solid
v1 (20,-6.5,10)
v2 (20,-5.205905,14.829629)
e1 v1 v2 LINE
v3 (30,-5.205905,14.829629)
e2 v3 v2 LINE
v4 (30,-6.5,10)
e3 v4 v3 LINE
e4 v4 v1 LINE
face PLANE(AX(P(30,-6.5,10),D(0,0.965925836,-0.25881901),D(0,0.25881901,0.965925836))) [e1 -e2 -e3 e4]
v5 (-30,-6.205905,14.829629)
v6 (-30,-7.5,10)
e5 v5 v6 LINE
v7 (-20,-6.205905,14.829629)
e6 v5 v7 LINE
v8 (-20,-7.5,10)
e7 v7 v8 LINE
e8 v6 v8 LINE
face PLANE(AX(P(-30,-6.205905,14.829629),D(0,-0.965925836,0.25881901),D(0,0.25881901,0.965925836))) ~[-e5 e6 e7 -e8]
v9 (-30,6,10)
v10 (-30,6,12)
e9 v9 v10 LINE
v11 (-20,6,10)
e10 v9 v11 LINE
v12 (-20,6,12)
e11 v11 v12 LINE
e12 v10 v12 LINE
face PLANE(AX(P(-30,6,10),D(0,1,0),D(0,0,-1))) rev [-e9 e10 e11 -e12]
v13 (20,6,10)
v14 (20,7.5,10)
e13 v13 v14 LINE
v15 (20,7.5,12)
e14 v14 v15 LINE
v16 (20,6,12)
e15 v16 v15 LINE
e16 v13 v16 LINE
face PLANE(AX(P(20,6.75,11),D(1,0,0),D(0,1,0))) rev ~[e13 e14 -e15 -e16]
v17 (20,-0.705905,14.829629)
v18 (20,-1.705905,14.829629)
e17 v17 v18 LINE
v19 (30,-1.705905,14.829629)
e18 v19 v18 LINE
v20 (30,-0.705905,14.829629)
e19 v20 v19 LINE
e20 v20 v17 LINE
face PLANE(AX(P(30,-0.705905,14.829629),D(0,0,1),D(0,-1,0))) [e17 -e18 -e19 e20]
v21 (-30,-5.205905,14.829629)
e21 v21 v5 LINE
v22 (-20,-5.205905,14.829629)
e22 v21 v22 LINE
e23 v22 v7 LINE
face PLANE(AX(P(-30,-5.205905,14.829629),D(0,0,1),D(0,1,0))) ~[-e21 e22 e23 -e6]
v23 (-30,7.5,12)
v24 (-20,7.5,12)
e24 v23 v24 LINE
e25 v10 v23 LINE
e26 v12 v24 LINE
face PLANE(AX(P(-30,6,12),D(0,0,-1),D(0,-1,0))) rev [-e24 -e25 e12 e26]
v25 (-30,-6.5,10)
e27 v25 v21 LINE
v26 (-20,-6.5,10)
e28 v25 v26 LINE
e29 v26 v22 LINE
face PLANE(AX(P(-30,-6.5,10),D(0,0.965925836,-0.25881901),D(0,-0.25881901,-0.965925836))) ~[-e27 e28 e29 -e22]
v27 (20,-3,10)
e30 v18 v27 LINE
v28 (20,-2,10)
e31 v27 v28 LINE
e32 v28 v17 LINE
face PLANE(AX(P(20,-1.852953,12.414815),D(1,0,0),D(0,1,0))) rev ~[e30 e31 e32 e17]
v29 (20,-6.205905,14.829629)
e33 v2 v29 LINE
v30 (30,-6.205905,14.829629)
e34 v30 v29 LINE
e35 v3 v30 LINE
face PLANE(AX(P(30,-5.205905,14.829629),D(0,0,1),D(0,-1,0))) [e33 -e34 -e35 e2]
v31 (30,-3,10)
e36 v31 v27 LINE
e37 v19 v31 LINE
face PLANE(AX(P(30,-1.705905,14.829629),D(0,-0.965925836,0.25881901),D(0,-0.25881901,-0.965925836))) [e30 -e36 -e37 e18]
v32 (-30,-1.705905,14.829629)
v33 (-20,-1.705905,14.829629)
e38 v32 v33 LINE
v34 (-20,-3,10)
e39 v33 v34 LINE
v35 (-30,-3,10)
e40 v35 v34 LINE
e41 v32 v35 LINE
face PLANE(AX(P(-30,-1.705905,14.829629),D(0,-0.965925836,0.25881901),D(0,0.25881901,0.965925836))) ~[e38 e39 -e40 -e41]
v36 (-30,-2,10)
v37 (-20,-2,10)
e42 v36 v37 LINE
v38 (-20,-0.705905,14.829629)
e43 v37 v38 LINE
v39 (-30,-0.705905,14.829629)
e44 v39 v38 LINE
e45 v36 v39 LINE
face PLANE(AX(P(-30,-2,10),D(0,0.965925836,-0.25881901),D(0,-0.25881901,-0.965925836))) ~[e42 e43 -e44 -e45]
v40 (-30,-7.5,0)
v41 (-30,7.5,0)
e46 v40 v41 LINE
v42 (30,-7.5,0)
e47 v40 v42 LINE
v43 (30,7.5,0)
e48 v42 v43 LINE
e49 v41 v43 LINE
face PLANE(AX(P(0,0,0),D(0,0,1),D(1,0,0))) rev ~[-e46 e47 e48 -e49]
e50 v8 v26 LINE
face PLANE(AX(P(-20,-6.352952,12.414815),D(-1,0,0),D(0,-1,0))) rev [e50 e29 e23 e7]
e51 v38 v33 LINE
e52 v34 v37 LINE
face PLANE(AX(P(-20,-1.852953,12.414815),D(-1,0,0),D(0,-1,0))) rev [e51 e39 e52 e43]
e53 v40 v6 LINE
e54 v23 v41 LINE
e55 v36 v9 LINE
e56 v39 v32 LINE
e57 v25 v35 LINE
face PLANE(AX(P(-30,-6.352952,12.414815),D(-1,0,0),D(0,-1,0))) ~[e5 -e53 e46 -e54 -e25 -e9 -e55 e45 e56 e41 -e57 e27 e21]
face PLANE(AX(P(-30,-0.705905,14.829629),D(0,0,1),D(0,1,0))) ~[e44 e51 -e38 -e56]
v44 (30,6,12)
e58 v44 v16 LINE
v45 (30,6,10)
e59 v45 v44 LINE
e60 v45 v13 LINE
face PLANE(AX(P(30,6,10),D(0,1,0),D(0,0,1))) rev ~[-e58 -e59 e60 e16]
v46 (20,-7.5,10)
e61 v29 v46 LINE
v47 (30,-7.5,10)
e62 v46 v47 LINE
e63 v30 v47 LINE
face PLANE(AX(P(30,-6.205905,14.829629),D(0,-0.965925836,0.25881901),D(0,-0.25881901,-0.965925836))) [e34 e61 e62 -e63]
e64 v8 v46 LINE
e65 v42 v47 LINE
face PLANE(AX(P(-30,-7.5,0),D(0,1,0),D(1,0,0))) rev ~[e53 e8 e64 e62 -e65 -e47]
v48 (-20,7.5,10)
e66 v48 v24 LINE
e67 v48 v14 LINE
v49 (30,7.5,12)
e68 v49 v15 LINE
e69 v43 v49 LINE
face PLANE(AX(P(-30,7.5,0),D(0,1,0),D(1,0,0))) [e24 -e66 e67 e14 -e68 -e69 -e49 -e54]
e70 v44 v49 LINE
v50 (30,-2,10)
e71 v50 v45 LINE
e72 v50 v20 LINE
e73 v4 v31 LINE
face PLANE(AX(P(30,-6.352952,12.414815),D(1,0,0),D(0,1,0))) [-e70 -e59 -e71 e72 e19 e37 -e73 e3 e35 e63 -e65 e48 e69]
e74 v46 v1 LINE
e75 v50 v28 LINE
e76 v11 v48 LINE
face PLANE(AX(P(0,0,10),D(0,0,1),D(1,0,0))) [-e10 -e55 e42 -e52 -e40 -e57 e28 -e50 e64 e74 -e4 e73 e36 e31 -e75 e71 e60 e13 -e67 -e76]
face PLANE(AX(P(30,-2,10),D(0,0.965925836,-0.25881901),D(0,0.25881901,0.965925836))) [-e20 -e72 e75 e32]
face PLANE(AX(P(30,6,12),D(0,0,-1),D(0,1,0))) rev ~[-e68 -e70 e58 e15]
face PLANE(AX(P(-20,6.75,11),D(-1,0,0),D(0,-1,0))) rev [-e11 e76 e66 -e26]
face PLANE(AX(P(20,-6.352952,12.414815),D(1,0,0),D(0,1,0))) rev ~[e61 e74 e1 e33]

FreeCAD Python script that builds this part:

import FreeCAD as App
import Part
import Sketcher

V = App.Vector
Q = App.Units.Quantity

doc = App.newDocument("Part")
params = doc.addObject("Spreadsheet::Sheet", "Params")
for row, (alias, value) in enumerate([
    ("sketch1_width", "60 mm"),
    ("sketch1_height", "15 mm"),
    ("pad1_length", "10 mm"),
    ("sketch2_width", "1 mm"),
    ("sketch2_height", "2 mm"),
    ("sketch2_length", "5 mm"),
    ("sketch2_width2", "1.5 mm"),
    ("pad2_length", "10 mm"),
], start=1):
    params.set(f"A{row}", alias)
    params.set(f"B{row}", "=" + value)
    params.setAlias(f"B{row}", alias)

body = doc.addObject("PartDesign::Body", "Body")

# Sketch on XY plane
sketch1 = body.newObject("Sketcher::SketchObject", "Sketch")
sketch1.AttachmentSupport = (doc.getObject("XY_Plane"), [""])
sketch1.MapMode = "FlatFace"
sketch1.addGeometry([
    Part.LineSegment(V(-30, 8, 0), V(-30, -8, 0)),
    Part.LineSegment(V(-30, -8, 0), V(30, -8, 0)),
    Part.LineSegment(V(30, -8, 0), V(30, 8, 0)),
    Part.LineSegment(V(30, 8, 0), V(-30, 8, 0)),
], False)
sketch1.addConstraint([
    Sketcher.Constraint("Coincident", 0, 2, 1, 1),
    Sketcher.Constraint("Coincident", 1, 2, 2, 1),
    Sketcher.Constraint("Coincident", 2, 2, 3, 1),
    Sketcher.Constraint("Coincident", 3, 2, 0, 1),
    Sketcher.Constraint("Vertical", 0),
    Sketcher.Constraint("Horizontal", 1),
    Sketcher.Constraint("Vertical", 2),
    Sketcher.Constraint("Horizontal", 3),
    Sketcher.Constraint("Symmetric", 0, 2, 2, 2, -1, 1),
    Sketcher.Constraint("DistanceX", 1, 1, 1, 2, Q("60 mm")),
    Sketcher.Constraint("DistanceY", 0, 2, 0, 1, Q("15 mm")),
])
sketch1.setExpression("Constraints[9]", "Params.sketch1_width")
sketch1.setExpression("Constraints[10]", "Params.sketch1_height")
pad1 = body.newObject("PartDesign::Pad", "Pad")
pad1.Profile = sketch1
pad1.setExpression("Length", "Params.pad1_length")

# Sketch on YZ plane
sketch2 = body.newObject("Sketcher::SketchObject", "Sketch001")
sketch2.AttachmentSupport = (doc.getObject("YZ_Plane"), [""])
sketch2.MapMode = "FlatFace"
sketch2.AttachmentOffset = App.Placement(V(0, 0, 30), App.Rotation())
sketch2.addGeometry([
    Part.LineSegment(V(-6.2, 14.8, 0), V(-7.5, 10, 0)),  # 0
    Part.LineSegment(V(-7.5, 10, 0), V(-6.5, 10, 0)),  # 1
    Part.LineSegment(V(-6.5, 10, 0), V(-5.2, 14.8, 0)),  # 2
    Part.LineSegment(V(-5.2, 14.8, 0), V(-6.2, 14.8, 0)),  # 3
    Part.LineSegment(V(-3, 10, 0), V(-2, 10, 0)),  # 4
    Part.LineSegment(V(-2, 10, 0), V(-0.7, 14.8, 0)),  # 5
    Part.LineSegment(V(-0.7, 14.8, 0), V(-1.7, 14.8, 0)),  # 6
    Part.LineSegment(V(-1.7, 14.8, 0), V(-3, 10, 0)),  # 7
    Part.LineSegment(V(6, 12, 0), V(6, 10, 0)),  # 8
    Part.LineSegment(V(6, 10, 0), V(7.5, 10, 0)),  # 9
    Part.LineSegment(V(7.5, 10, 0), V(7.5, 12, 0)),  # 10
    Part.LineSegment(V(7.5, 12, 0), V(6, 12, 0)),  # 11
], False)
sketch2.addConstraint([
    Sketcher.Constraint("Coincident", 0, 2, 1, 1),
    Sketcher.Constraint("Coincident", 1, 2, 2, 1),
    Sketcher.Constraint("Coincident", 2, 2, 3, 1),
    Sketcher.Constraint("Coincident", 3, 2, 0, 1),
    Sketcher.Constraint("Coincident", 4, 2, 5, 1),
    Sketcher.Constraint("Coincident", 5, 2, 6, 1),
    Sketcher.Constraint("Coincident", 6, 2, 7, 1),
    Sketcher.Constraint("Coincident", 7, 2, 4, 1),
    Sketcher.Constraint("Coincident", 8, 2, 9, 1),
    Sketcher.Constraint("Coincident", 9, 2, 10, 1),
    Sketcher.Constraint("Coincident", 10, 2, 11, 1),
    Sketcher.Constraint("Coincident", 11, 2, 8, 1),
    Sketcher.Constraint("Horizontal", 1),
    Sketcher.Constraint("Horizontal", 3),
    Sketcher.Constraint("Horizontal", 4),
    Sketcher.Constraint("Horizontal", 6),
    Sketcher.Constraint("Vertical", 8),
    Sketcher.Constraint("Horizontal", 9),
    Sketcher.Constraint("Vertical", 10),
    Sketcher.Constraint("Horizontal", 11),
    Sketcher.Constraint("Symmetric", 0, 2, 9, 2, -2),
    Sketcher.Constraint("Parallel", 0, 2),
    Sketcher.Constraint("Parallel", 2, 5),
    Sketcher.Constraint("Parallel", 5, 7),
    Sketcher.Constraint("Horizontal", 1, 2, 4, 2),
    Sketcher.Constraint("Horizontal", 3, 2, 5, 2),
    Sketcher.Constraint("Equal", 3, 4),
    Sketcher.Constraint("DistanceX", 1, 1, 1, 2, Q("1 mm")),
    Sketcher.Constraint("DistanceY", 8, 2, 8, 1, Q("2 mm")),
    Sketcher.Constraint("Angle", 0, Q("-104.999998 deg")),
    Sketcher.Constraint("Distance", 0, Q("5 mm")),
    Sketcher.Constraint("DistanceX", 9, 1, 9, 2, Q("1.5 mm")),
    Sketcher.Constraint("DistanceY", -1, 1, 0, 2, Q("10 mm")),
    Sketcher.Constraint("DistanceX", 4, 2, -1, 1, Q("2 mm")),
    Sketcher.Constraint("DistanceX", -1, 1, 8, 2, Q("6 mm")),
])
sketch2.setExpression("Constraints[27]", "Params.sketch2_width")
sketch2.setExpression("Constraints[28]", "Params.sketch2_height")
sketch2.setExpression("Constraints[30]", "Params.sketch2_length")
sketch2.setExpression("Constraints[31]", "Params.sketch2_width2")
pad2 = body.newObject("PartDesign::Pad", "Pad001")
pad2.Profile = sketch2
pad2.setExpression("Length", "Params.pad2_length")
pad2.Reversed = True
body2 = doc.addObject("PartDesign::Body", "Body001")
doc.recompute()

body2.BaseFeature = body
doc.recompute()

mirroring = doc.addObject("Part::Mirroring", "Mirroring")
mirroring.Source = body
mirroring.Base = V(0, 0, 0)
mirroring.Normal = V(1, 0, 0)
body3 = doc.addObject("PartDesign::Body", "Body002")
body3.BaseFeature = mirroring
boolean = body2.newObject("PartDesign::Boolean", "Boolean")
boolean.Type = "Fuse"
boolean.addObjects([body3])
doc.recompute()
mirroring.Visibility = False

doc.recompute()
